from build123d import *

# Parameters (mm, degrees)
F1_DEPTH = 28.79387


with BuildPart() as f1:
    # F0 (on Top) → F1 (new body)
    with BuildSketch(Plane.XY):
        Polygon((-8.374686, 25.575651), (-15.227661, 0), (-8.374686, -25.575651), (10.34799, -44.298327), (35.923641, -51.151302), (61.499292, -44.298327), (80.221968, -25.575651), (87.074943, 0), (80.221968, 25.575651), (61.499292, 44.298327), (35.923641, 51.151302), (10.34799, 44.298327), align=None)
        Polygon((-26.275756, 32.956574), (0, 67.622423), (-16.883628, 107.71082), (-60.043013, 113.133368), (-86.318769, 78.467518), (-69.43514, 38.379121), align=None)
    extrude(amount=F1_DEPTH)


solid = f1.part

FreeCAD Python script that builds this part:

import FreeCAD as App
import Part
import Sketcher
from FreeCAD import Vector
Q = App.Units.Quantity

doc = App.newDocument("Part")
body = doc.addObject("PartDesign::Body", "Body")
body.AllowCompound = True

# Sketch on XY plane
sketch1 = body.newObject("Sketcher::SketchObject", "Sketch")
sketch1.AttachmentSupport = (doc.getObject("XY_Plane"), [""])
sketch1.MapMode = "FlatFace"
sketch1.addGeometry([
    Part.LineSegment(Vector(-8.374686, 25.575651, 0), Vector(-15.227661, 0, 0)),  # 0
    Part.LineSegment(Vector(-15.227661, 0, 0), Vector(-8.374686, -25.575651, 0)),  # 1
    Part.LineSegment(Vector(-8.374686, -25.575651, 0), Vector(10.34799, -44.298327, 0)),  # 2
    Part.LineSegment(Vector(10.34799, -44.298327, 0), Vector(35.923641, -51.151302, 0)),  # 3
    Part.LineSegment(Vector(35.923641, -51.151302, 0), Vector(61.499292, -44.298327, 0)),  # 4
    Part.LineSegment(Vector(61.499292, -44.298327, 0), Vector(80.221968, -25.575651, 0)),  # 5
    Part.LineSegment(Vector(80.221968, -25.575651, 0), Vector(87.074943, 0, 0)),  # 6
    Part.LineSegment(Vector(87.074943, 0, 0), Vector(80.221968, 25.575651, 0)),  # 7
    Part.LineSegment(Vector(80.221968, 25.575651, 0), Vector(61.499292, 44.298327, 0)),  # 8
    Part.LineSegment(Vector(61.499292, 44.298327, 0), Vector(35.923641, 51.151302, 0)),  # 9
    Part.LineSegment(Vector(35.923641, 51.151302, 0), Vector(10.34799, 44.298327, 0)),  # 10
    Part.LineSegment(Vector(10.34799, 44.298327, 0), Vector(-8.374686, 25.575651, 0)),  # 11
    Part.LineSegment(Vector(-26.275756, 32.956574, 0), Vector(0, 67.622423, 0)),  # 12
    Part.LineSegment(Vector(0, 67.622423, 0), Vector(-16.883628, 107.71082, 0)),  # 13
    Part.LineSegment(Vector(-16.883628, 107.71082, 0), Vector(-60.043013, 113.133368, 0)),  # 14
    Part.LineSegment(Vector(-60.043013, 113.133368, 0), Vector(-86.318769, 78.467518, 0)),  # 15
    Part.LineSegment(Vector(-86.318769, 78.467518, 0), Vector(-69.43514, 38.379121, 0)),  # 16
    Part.LineSegment(Vector(-69.43514, 38.379121, 0), Vector(-26.275756, 32.956574, 0)),  # 17
], False)
sketch1.addConstraint([
    Sketcher.Constraint("Coincident", 0, 2, 1, 1),
    Sketcher.Constraint("Coincident", 1, 2, 2, 1),
    Sketcher.Constraint("Coincident", 2, 2, 3, 1),
    Sketcher.Constraint("Coincident", 3, 2, 4, 1),
    Sketcher.Constraint("Coincident", 4, 2, 5, 1),
    Sketcher.Constraint("Coincident", 5, 2, 6, 1),
    Sketcher.Constraint("Coincident", 6, 2, 7, 1),
    Sketcher.Constraint("Coincident", 7, 2, 8, 1),
    Sketcher.Constraint("Coincident", 8, 2, 9, 1),
    Sketcher.Constraint("Coincident", 9, 2, 10, 1),
    Sketcher.Constraint("Coincident", 10, 2, 11, 1),
    Sketcher.Constraint("Coincident", 11, 2, 0, 1),
    Sketcher.Constraint("Coincident", 12, 2, 13, 1),
    Sketcher.Constraint("Coincident", 13, 2, 14, 1),
    Sketcher.Constraint("Coincident", 14, 2, 15, 1),
    Sketcher.Constraint("Coincident", 15, 2, 16, 1),
    Sketcher.Constraint("Coincident", 16, 2, 17, 1),
    Sketcher.Constraint("Coincident", 17, 2, 12, 1),
    Sketcher.Constraint("Symmetric", 5, 2, 7, 2, -1),
    Sketcher.Constraint("Symmetric", 4, 2, 8, 2, -1),
    Sketcher.Constraint("Symmetric", 3, 2, 9, 2, -1),
    Sketcher.Constraint("Symmetric", 2, 2, 10, 2, -1),
    Sketcher.Constraint("Symmetric", 1, 2, 11, 2, -1),
    Sketcher.Constraint("PointOnObject", 0, 2, -1),
    Sketcher.Constraint("PointOnObject", 6, 2, -1),
    Sketcher.Constraint("PointOnObject", 12, 2, -2),
    Sketcher.Constraint("Perpendicular", 0, 3),
    Sketcher.Constraint("Perpendicular", 1, 4),
    Sketcher.Constraint("Perpendicular", 2, 5),
    Sketcher.Constraint("Perpendicular", 3, 6),
    Sketcher.Constraint("Perpendicular", 5, 8),
    Sketcher.Constraint("Parallel", 12, 15),
    Sketcher.Constraint("Parallel", 13, 16),
    Sketcher.Constraint("Parallel", 14, 17),
    Sketcher.Constraint("Horizontal", 2, 2, 4, 2),
    Sketcher.Constraint("Horizontal", 1, 2, 5, 2),
    Sketcher.Constraint("Equal", 1, 2),
    Sketcher.Constraint("Equal", 2, 3),
    Sketcher.Constraint("Equal", 12, 13),
    Sketcher.Constraint("Equal", 13, 14),
    Sketcher.Constraint("Equal", 14, 15),
    Sketcher.Constraint("Angle", 0, Q("-105 deg")),
    Sketcher.Constraint("DistanceY", 15, 2, 13, 2, Q("29.243302 mm")),
    Sketcher.Constraint("DistanceX", 0, 2, -1, 1, Q("15.227661 mm")),
    Sketcher.Constraint("DistanceY", 1, 2, -1, 1, Q("25.575651 mm")),
    Sketcher.Constraint("DistanceX", 13, 2, -1, 1, Q("16.883628 mm")),
    Sketcher.Constraint("DistanceY", -1, 1, 13, 2, Q("107.71082 mm")),
    Sketcher.Constraint("DistanceY", -1, 1, 14, 2, Q("113.133368 mm")),
    Sketcher.Constraint("DistanceX", 15, 2, -1, 1, Q("86.318769 mm")),
])
pad1 = body.newObject("PartDesign::Pad", "Pad")
pad1.Profile = sketch1
pad1.Length = 28.79387

doc.recompute()
